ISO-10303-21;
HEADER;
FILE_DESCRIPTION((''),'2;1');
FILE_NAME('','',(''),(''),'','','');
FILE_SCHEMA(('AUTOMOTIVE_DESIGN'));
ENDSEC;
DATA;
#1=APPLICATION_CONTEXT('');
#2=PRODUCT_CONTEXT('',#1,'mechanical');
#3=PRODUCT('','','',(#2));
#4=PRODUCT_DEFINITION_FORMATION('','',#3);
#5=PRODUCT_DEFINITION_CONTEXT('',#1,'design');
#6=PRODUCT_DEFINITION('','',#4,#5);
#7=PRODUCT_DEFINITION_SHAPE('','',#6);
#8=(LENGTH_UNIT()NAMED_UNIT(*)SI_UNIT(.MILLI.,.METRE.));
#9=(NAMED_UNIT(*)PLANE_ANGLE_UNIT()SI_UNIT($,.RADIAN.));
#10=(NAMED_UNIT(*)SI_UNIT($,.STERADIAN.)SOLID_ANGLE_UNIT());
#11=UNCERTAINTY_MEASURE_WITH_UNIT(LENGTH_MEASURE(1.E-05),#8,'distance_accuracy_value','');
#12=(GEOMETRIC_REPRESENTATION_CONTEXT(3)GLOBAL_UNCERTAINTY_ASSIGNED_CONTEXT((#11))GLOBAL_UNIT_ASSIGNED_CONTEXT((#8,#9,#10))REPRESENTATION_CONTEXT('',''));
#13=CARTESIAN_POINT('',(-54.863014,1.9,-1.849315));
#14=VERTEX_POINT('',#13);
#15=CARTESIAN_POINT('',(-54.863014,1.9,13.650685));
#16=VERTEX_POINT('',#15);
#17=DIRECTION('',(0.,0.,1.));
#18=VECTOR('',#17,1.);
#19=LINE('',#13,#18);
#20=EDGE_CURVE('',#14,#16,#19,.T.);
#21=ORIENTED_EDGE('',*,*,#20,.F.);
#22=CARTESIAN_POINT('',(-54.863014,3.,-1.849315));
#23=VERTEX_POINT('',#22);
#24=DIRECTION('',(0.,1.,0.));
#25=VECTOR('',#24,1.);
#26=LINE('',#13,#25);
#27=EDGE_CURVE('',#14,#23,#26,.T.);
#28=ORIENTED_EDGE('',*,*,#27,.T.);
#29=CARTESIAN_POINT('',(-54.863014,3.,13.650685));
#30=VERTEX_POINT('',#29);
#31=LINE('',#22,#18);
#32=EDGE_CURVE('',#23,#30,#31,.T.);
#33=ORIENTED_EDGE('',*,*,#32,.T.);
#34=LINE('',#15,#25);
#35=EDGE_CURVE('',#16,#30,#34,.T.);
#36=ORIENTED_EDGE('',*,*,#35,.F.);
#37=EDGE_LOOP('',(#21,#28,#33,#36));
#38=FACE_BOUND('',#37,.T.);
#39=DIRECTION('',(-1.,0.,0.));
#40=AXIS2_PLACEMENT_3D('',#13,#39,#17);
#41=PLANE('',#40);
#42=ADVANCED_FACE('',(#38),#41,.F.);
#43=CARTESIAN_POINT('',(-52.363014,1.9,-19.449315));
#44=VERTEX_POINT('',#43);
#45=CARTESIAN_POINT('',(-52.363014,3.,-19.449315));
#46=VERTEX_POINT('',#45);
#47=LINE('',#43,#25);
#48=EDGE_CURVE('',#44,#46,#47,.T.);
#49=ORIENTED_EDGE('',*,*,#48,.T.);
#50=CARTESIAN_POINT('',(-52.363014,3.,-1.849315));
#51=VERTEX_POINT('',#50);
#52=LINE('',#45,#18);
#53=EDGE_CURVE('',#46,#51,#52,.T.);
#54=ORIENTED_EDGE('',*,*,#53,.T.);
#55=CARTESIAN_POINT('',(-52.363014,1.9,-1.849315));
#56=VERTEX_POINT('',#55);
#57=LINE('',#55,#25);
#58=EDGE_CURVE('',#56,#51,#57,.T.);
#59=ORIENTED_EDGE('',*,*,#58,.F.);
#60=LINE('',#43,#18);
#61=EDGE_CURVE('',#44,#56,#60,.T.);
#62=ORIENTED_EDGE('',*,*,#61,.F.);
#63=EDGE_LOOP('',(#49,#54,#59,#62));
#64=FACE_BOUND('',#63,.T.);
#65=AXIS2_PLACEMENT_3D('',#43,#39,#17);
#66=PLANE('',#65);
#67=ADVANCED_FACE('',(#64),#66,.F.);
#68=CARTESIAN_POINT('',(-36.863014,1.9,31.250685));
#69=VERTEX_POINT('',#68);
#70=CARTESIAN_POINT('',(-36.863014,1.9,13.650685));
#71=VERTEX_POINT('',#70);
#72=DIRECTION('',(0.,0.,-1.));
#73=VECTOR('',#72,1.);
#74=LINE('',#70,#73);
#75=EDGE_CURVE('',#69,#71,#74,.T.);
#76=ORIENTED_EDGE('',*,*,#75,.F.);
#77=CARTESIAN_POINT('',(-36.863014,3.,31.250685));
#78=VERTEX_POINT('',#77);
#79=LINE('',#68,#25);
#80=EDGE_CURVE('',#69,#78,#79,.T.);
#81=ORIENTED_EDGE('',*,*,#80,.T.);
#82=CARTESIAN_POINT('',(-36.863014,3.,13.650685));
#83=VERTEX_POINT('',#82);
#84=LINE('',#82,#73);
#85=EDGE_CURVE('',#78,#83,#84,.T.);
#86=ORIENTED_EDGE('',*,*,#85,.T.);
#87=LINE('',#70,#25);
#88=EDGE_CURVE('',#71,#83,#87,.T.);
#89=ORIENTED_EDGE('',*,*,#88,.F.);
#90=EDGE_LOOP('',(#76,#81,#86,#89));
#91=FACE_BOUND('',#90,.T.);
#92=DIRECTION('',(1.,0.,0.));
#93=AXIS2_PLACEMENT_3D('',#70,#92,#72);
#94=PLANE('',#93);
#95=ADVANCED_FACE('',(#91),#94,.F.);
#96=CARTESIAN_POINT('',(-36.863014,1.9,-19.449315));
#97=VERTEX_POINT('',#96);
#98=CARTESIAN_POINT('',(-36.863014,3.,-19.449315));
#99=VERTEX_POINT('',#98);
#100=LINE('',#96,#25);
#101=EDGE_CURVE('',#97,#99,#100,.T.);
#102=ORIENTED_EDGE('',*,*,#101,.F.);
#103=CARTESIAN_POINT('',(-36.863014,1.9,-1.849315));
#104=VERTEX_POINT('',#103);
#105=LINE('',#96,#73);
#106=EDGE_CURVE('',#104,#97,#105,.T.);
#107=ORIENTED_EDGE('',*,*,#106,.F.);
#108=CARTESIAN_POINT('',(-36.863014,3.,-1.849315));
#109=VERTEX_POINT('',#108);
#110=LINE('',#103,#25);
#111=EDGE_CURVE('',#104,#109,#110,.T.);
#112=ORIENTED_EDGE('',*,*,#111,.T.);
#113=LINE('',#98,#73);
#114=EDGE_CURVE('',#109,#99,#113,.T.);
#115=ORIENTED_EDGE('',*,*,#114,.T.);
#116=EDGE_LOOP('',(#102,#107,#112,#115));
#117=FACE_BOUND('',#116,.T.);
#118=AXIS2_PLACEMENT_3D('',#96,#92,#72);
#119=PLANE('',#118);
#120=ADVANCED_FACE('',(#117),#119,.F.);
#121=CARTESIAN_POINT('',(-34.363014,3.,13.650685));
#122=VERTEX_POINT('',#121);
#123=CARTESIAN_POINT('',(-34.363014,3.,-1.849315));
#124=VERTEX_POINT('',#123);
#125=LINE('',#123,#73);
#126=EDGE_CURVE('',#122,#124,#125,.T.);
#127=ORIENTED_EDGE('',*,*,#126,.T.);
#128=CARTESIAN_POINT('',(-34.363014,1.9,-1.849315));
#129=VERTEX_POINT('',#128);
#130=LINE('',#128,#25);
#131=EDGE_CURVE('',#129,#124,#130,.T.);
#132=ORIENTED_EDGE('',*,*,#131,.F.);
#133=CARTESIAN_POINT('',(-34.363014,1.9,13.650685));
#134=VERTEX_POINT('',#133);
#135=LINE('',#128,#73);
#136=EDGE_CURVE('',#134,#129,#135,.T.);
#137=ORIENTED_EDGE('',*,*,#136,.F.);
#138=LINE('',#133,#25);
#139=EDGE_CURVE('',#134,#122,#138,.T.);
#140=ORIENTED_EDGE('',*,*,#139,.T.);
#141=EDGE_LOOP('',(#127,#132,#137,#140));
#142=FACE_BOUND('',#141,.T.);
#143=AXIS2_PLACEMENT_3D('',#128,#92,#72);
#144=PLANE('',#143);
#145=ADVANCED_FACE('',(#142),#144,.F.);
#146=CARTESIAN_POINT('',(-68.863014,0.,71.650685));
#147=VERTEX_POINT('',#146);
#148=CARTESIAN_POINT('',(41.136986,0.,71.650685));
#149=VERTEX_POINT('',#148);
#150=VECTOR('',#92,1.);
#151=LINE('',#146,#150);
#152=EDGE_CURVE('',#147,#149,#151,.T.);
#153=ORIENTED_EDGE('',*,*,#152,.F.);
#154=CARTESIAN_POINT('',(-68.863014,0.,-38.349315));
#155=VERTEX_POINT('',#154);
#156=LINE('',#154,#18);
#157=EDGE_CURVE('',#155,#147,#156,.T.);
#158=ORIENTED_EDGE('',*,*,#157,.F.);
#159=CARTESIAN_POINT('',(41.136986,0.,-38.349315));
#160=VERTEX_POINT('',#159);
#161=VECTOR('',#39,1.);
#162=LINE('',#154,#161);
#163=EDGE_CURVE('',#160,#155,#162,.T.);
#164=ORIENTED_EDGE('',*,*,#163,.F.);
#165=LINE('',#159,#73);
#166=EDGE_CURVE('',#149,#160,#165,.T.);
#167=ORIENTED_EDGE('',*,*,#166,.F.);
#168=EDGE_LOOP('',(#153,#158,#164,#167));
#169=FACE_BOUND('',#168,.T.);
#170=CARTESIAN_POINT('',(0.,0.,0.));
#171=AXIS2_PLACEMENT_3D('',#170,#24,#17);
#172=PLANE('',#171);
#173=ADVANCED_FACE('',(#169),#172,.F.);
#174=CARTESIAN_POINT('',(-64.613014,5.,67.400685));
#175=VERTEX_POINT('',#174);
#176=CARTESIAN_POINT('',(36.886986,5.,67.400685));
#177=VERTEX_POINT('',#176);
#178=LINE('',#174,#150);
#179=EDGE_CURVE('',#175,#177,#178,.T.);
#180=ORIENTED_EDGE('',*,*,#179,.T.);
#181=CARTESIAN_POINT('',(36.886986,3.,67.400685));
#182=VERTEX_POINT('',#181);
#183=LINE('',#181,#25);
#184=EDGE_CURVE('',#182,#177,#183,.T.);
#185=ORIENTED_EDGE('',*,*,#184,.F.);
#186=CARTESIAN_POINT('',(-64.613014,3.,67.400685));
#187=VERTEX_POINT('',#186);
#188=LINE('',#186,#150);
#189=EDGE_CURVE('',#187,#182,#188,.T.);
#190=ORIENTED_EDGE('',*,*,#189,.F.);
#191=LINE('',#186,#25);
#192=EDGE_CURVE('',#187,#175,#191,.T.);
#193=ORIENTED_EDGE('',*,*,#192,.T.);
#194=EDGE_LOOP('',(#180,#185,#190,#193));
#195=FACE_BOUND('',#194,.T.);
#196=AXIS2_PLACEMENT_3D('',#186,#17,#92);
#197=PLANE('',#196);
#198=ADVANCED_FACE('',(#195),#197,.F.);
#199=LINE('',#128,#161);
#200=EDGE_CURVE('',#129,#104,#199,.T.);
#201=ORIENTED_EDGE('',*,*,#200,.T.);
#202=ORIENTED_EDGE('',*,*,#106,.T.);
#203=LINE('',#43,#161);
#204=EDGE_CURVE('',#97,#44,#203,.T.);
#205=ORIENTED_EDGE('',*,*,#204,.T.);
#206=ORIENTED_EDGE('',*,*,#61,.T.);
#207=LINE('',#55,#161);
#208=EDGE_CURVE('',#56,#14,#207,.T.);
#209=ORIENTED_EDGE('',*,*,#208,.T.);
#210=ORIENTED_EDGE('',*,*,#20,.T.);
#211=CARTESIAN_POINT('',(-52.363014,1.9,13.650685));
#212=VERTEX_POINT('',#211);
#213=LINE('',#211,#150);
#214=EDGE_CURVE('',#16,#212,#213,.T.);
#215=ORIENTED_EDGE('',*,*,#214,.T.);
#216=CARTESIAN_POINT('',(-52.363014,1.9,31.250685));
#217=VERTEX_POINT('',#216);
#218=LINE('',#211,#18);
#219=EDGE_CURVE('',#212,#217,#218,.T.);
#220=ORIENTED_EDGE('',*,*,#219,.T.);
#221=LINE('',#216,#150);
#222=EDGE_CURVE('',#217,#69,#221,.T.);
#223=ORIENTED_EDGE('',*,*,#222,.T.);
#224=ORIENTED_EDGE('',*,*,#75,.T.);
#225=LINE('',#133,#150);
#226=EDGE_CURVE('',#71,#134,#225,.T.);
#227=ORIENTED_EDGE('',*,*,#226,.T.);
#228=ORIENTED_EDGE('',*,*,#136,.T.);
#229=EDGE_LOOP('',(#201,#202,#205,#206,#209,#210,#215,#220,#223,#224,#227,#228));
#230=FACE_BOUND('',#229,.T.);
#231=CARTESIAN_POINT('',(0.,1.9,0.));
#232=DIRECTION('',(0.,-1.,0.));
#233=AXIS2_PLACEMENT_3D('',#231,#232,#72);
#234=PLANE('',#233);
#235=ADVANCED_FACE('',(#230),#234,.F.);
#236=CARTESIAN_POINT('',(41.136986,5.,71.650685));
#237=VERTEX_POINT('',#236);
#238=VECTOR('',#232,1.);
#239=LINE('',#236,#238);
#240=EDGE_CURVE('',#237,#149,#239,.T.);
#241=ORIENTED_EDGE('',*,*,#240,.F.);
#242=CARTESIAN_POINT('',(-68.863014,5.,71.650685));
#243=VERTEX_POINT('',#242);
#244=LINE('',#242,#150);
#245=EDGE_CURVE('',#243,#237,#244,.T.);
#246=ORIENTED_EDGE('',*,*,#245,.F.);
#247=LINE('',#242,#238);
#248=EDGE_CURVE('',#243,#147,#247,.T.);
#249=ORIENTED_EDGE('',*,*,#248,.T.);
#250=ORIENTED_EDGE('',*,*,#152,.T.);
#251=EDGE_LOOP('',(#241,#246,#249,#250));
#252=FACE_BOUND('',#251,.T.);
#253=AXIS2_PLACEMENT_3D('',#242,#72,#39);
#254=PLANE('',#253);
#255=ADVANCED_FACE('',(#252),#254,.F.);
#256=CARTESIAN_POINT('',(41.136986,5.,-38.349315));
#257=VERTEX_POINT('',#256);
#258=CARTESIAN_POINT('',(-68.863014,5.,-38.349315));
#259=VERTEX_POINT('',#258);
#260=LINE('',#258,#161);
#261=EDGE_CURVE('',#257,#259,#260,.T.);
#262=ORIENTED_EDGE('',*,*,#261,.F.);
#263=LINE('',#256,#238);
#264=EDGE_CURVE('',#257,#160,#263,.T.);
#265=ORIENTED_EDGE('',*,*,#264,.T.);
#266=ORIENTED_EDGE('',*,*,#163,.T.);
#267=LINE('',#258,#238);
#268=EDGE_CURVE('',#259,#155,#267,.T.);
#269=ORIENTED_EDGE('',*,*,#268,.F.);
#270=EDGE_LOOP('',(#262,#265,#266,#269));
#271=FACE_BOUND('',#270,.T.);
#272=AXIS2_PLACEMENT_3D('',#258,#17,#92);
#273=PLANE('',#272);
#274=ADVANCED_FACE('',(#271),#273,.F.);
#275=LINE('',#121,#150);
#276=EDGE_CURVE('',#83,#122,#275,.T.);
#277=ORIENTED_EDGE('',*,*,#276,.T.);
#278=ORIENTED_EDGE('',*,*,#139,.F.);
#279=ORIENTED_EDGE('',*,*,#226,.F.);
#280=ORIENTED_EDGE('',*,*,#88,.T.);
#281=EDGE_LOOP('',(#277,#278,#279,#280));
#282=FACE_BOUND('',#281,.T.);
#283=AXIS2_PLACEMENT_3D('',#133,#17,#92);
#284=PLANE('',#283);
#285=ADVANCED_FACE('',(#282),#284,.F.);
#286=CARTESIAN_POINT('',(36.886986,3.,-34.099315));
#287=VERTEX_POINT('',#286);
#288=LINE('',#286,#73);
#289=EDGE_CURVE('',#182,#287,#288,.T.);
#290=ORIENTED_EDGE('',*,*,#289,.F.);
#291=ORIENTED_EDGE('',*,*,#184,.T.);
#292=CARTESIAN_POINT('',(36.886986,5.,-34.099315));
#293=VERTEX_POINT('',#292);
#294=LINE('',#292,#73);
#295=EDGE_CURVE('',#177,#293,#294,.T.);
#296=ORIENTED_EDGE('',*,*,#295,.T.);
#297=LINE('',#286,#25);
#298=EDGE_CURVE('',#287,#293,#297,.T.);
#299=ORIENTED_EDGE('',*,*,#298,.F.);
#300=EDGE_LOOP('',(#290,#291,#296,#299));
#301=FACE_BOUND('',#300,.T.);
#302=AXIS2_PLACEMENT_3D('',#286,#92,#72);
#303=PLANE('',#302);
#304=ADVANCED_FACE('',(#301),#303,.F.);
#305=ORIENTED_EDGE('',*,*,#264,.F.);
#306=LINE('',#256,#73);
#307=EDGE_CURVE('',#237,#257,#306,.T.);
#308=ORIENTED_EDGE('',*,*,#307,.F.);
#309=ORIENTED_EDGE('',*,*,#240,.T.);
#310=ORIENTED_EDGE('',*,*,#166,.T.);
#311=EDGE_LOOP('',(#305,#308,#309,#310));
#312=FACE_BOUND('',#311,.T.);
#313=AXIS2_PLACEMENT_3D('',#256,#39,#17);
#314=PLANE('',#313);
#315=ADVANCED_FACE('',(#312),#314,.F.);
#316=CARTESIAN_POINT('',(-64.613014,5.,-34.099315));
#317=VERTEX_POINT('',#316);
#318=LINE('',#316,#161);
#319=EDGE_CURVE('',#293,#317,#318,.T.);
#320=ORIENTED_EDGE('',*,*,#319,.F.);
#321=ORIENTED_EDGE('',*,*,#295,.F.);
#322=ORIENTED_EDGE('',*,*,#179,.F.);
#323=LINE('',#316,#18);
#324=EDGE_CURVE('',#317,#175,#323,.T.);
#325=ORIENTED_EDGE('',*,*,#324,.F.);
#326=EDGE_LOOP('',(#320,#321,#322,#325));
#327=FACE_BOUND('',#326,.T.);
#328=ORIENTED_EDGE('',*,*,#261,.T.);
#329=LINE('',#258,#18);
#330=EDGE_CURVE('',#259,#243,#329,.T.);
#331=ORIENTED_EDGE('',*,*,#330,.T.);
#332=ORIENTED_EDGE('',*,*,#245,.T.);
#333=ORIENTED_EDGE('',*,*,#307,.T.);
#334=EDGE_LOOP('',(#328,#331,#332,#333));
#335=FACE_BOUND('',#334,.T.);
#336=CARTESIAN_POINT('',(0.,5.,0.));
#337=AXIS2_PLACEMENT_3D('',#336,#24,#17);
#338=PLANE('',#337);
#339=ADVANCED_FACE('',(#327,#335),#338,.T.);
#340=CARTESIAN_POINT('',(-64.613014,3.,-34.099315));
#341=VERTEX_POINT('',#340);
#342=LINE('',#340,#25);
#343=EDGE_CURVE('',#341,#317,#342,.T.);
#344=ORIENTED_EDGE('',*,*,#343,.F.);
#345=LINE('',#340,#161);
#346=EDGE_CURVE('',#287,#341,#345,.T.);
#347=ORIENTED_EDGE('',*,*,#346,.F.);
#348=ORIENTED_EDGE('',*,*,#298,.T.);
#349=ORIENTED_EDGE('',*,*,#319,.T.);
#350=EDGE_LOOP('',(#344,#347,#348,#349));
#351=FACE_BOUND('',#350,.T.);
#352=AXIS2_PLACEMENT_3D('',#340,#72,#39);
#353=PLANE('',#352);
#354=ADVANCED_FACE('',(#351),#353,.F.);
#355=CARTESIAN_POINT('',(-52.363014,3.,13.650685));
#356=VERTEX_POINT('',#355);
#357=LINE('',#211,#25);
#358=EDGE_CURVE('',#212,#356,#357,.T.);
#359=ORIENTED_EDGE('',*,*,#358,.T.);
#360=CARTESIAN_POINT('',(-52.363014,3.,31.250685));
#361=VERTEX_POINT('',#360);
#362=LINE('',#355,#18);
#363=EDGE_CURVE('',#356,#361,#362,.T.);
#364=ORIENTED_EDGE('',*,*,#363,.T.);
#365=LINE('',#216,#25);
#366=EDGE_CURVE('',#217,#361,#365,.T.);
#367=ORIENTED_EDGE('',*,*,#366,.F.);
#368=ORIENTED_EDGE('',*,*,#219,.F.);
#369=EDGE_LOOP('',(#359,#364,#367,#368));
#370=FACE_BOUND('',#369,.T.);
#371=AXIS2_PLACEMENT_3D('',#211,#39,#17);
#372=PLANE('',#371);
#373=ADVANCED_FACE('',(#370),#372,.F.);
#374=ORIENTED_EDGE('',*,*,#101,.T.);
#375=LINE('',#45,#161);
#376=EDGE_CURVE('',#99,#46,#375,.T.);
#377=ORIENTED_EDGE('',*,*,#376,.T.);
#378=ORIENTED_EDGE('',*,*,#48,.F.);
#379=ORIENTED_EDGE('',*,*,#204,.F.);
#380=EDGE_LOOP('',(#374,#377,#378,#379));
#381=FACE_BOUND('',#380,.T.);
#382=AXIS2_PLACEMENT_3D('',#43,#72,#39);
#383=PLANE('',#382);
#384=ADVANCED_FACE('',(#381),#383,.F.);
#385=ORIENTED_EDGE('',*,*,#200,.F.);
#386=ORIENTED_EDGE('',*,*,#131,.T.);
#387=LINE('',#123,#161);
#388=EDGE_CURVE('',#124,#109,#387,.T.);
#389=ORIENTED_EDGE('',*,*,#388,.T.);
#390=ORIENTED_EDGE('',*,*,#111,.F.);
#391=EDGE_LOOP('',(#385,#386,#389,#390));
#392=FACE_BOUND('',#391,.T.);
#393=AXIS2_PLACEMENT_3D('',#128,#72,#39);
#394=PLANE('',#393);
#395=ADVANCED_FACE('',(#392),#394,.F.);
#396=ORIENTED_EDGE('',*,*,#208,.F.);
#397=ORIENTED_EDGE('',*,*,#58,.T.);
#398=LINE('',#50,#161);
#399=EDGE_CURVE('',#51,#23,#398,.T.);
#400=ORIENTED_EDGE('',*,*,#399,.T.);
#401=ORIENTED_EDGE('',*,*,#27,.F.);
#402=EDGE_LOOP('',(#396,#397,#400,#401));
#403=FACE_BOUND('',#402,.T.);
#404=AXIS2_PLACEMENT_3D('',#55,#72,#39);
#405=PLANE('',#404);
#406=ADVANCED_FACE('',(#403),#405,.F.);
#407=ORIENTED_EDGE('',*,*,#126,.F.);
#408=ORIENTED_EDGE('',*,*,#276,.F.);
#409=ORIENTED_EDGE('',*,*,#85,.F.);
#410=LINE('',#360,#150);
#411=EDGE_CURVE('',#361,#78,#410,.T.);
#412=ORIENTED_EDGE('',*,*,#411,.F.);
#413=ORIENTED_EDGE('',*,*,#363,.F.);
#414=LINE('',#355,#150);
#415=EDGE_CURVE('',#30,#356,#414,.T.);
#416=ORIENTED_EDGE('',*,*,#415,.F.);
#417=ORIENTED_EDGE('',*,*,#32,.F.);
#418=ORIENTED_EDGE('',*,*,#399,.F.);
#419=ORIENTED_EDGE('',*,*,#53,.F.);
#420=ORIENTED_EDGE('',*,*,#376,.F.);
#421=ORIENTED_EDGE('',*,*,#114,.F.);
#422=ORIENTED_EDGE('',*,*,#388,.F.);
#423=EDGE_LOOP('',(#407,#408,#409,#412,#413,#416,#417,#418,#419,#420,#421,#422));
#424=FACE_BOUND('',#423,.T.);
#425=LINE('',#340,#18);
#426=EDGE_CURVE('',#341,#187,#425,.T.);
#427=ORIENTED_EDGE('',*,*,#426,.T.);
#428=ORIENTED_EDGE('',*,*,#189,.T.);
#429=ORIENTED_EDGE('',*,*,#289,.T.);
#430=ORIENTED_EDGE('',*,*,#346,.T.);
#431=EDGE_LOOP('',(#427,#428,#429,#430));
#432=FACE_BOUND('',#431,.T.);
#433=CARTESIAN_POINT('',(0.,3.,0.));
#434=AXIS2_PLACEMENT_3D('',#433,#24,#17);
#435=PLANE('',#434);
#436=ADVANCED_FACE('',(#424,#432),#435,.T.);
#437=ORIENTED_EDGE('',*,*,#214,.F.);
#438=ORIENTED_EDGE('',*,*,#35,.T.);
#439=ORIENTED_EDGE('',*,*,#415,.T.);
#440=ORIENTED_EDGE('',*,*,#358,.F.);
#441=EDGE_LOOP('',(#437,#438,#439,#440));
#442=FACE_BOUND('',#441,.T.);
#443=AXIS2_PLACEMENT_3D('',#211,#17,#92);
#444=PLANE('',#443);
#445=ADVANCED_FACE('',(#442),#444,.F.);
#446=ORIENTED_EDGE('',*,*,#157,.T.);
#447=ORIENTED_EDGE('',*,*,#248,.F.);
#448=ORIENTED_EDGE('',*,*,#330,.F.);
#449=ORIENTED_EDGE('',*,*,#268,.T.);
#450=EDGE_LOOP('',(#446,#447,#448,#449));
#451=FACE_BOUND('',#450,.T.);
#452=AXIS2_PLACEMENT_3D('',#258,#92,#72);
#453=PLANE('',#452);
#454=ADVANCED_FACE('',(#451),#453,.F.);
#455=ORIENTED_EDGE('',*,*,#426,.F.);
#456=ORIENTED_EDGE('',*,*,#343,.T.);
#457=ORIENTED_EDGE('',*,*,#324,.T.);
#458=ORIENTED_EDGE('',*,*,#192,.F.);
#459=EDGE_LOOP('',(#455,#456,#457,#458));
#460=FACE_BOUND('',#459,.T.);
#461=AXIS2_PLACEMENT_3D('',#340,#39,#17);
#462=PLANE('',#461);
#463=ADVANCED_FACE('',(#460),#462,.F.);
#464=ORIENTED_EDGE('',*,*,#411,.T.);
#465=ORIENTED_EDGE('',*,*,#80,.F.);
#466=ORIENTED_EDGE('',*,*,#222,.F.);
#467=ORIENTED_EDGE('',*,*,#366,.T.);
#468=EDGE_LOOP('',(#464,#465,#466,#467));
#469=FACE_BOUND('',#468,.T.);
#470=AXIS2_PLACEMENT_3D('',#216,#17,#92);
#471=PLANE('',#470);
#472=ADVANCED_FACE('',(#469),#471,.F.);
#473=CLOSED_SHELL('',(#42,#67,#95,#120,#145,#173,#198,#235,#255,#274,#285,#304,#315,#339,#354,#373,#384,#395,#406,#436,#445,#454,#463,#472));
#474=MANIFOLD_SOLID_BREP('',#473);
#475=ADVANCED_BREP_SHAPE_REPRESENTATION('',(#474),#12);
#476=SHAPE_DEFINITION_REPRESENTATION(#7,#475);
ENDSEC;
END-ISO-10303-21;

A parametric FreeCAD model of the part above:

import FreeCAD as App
import Part
import Sketcher

V = App.Vector


def add_polygon(sketch, points):
    """Adds a closed chain of lines whose ends are joined by coincident constraints."""
    first, n = sketch.GeometryCount, len(points)
    for a, b in zip(points, points[1:] + points[:1]):
        sketch.addGeometry(Part.LineSegment(App.Vector(*a, 0), App.Vector(*b, 0)), False)
    for i in range(n):
        sketch.addConstraint(Sketcher.Constraint("Coincident", first + i, 2, first + (i + 1) % n, 1))

doc = App.newDocument("Part")
params = doc.addObject("Spreadsheet::Sheet", "Params")
for row, (alias, value) in enumerate([
    ("sketch1_width", "110 mm"),
    ("pad1_length", "5 mm"),
    ("sketch2_width", "101.5 mm"),
    ("pocket1_length", "2 mm"),
    ("sketch3_width", "2.5 mm"),
    ("sketch3_width2", "15.5 mm"),
    ("sketch3_height", "17.6 mm"),
    ("pocket2_length", "1.1 mm"),
], start=1):
    params.set(f"A{row}", alias)
    params.set(f"B{row}", "=" + value)
    params.setAlias(f"B{row}", alias)

body = doc.addObject("PartDesign::Body", "Body")

# Sketch on XZ plane
sketch1 = body.newObject("Sketcher::SketchObject", "Sketch")
sketch1.AttachmentSupport = (doc.getObject("XZ_Plane"), [""])
sketch1.MapMode = "FlatFace"
add_polygon(sketch1, [(-69, -38), (-69, 72), (41, 72), (41, -38)])  # lines 0-3
sketch1.addConstraint(Sketcher.Constraint("Vertical", 0))
sketch1.addConstraint(Sketcher.Constraint("Horizontal", 1))
sketch1.addConstraint(Sketcher.Constraint("Vertical", 2))
sketch1.addConstraint(Sketcher.Constraint("Horizontal", 3))
sketch1.addConstraint(Sketcher.Constraint("Equal", 3, 0))
sketch1.addConstraint(Sketcher.Constraint("DistanceX", 1, 1, 1, 2, 110.0))
sketch1.addConstraint(Sketcher.Constraint("DistanceX", 0, 2, -1, 1, 68.863014))
sketch1.addConstraint(Sketcher.Constraint("DistanceY", -1, 1, 0, 2, 71.650685))
sketch1.setExpression("Constraints[9]", "Params.sketch1_width")
pad1 = body.newObject("PartDesign::Pad", "Pad")
pad1.Profile = sketch1
pad1.setExpression("Length", "Params.pad1_length")
pad1.Reversed = True

# Sketch on XZ plane
sketch2 = body.newObject("Sketcher::SketchObject", "Sketch001")
sketch2.AttachmentSupport = (doc.getObject("XZ_Plane"), [""])
sketch2.MapMode = "FlatFace"
sketch2.AttachmentOffset = App.Placement(V(0, 0, -5), App.Rotation())
add_polygon(sketch2, [(-65, -34), (-65, 67), (37, 67), (37, -34)])  # lines 0-3
sketch2.addConstraint(Sketcher.Constraint("Vertical", 0))
sketch2.addConstraint(Sketcher.Constraint("Horizontal", 1))
sketch2.addConstraint(Sketcher.Constraint("Vertical", 2))
sketch2.addConstraint(Sketcher.Constraint("Horizontal", 3))
sketch2.addConstraint(Sketcher.Constraint("Equal", 3, 0))
sketch2.addConstraint(Sketcher.Constraint("DistanceX", 1, 1, 1, 2, 101.5))
sketch2.addConstraint(Sketcher.Constraint("DistanceX", 0, 2, -1, 1, 64.613014))
sketch2.addConstraint(Sketcher.Constraint("DistanceY", -1, 1, 0, 2, 67.400685))
sketch2.setExpression("Constraints[9]", "Params.sketch2_width")
pocket1 = body.newObject("PartDesign::Pocket", "Pocket")
pocket1.Profile = sketch2
pocket1.setExpression("Length", "Params.pocket1_length")
pocket1.Reversed = True

# Sketch on XZ plane
sketch3 = body.newObject("Sketcher::SketchObject", "Sketch002")
sketch3.AttachmentSupport = (doc.getObject("XZ_Plane"), [""])
sketch3.MapMode = "FlatFace"
sketch3.AttachmentOffset = App.Placement(V(0, 0, -3), App.Rotation())
add_polygon(sketch3, [(-34.4, -1.8), (-36.9, -1.8), (-36.9, -19.4), (-52.4, -19.4), (-52.4, -1.8), (-54.9, -1.8), (-54.9, 13.7), (-52.4, 13.7), (-52.4, 31.3), (-36.9, 31.3), (-36.9, 13.7), (-34.4, 13.7)])  # lines 0-11
sketch3.addConstraint(Sketcher.Constraint("Horizontal", 0))
sketch3.addConstraint(Sketcher.Constraint("Vertical", 1))
sketch3.addConstraint(Sketcher.Constraint("Horizontal", 2))
sketch3.addConstraint(Sketcher.Constraint("Vertical", 3))
sketch3.addConstraint(Sketcher.Constraint("Horizontal", 4))
sketch3.addConstraint(Sketcher.Constraint("Vertical", 5))
sketch3.addConstraint(Sketcher.Constraint("Horizontal", 6))
sketch3.addConstraint(Sketcher.Constraint("Vertical", 7))
sketch3.addConstraint(Sketcher.Constraint("Horizontal", 8))
sketch3.addConstraint(Sketcher.Constraint("Vertical", 9))
sketch3.addConstraint(Sketcher.Constraint("Horizontal", 10))
sketch3.addConstraint(Sketcher.Constraint("Vertical", 11))
sketch3.addConstraint(Sketcher.Constraint("Horizontal", 0, 2, 3, 2))
sketch3.addConstraint(Sketcher.Constraint("Horizontal", 6, 2, 9, 2))
sketch3.addConstraint(Sketcher.Constraint("Vertical", 3, 2, 6, 2))
sketch3.addConstraint(Sketcher.Constraint("Vertical", 1, 2, 8, 2))
sketch3.addConstraint(Sketcher.Constraint("Equal", 0, 4))
sketch3.addConstraint(Sketcher.Constraint("Equal", 8, 5))
sketch3.addConstraint(Sketcher.Constraint("Equal", 3, 7))
sketch3.addConstraint(Sketcher.Constraint("DistanceX", 0, 2, 0, 1, 2.5))
sketch3.addConstraint(Sketcher.Constraint("DistanceX", 2, 2, 2, 1, 15.5))
sketch3.addConstraint(Sketcher.Constraint("DistanceY", 1, 2, 1, 1, 17.6))
sketch3.addConstraint(Sketcher.Constraint("DistanceX", 0, 2, -1, 1, 36.863014))
sketch3.addConstraint(Sketcher.Constraint("DistanceY", 0, 2, -1, 1, 1.849315))
sketch3.setExpression("Constraints[31]", "Params.sketch3_width")
sketch3.setExpression("Constraints[32]", "Params.sketch3_width2")
sketch3.setExpression("Constraints[33]", "Params.sketch3_height")
pocket2 = body.newObject("PartDesign::Pocket", "Pocket001")
pocket2.Profile = sketch3
pocket2.setExpression("Length", "Params.pocket2_length")
pocket2.Reversed = True

doc.recompute()
